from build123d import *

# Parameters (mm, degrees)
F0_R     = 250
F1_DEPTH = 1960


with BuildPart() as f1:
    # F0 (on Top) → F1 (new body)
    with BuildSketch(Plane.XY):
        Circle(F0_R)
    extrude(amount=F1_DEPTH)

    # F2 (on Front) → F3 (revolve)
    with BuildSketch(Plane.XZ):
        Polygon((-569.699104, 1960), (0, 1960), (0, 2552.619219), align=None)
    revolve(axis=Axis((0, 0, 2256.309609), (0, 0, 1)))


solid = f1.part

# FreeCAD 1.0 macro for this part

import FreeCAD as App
import Part
import Sketcher

V = App.Vector


def add_polygon(sketch, points):
    """Adds a closed chain of lines whose ends are joined by coincident constraints."""
    first, n = sketch.GeometryCount, len(points)
    for a, b in zip(points, points[1:] + points[:1]):
        sketch.addGeometry(Part.LineSegment(App.Vector(*a, 0), App.Vector(*b, 0)), False)
    for i in range(n):
        sketch.addConstraint(Sketcher.Constraint("Coincident", first + i, 2, first + (i + 1) % n, 1))

doc = App.newDocument("Part")
params = doc.addObject("Spreadsheet::Sheet", "Params")
for row, (alias, value) in enumerate([
    ("sketch1_diameter", "500 mm"),
    ("pad1_length", "1960 mm"),
    ("revolution_angle", "360 deg"),
], start=1):
    params.set(f"A{row}", alias)
    params.set(f"B{row}", "=" + value)
    params.setAlias(f"B{row}", alias)

body = doc.addObject("PartDesign::Body", "Body")

# Sketch on XY plane
sketch1 = doc.addObject("Sketcher::SketchObject", "Sketch")
body.addObject(sketch1)
sketch1.AttachmentSupport = (doc.XY_Plane, [""])
sketch1.MapMode = "FlatFace"
sketch1.addGeometry(Part.Circle(V(0, 0, 0), V(0, 0, 1), 250), False)
sketch1.addConstraint(Sketcher.Constraint("Coincident", 0, 3, -1, 1))
sketch1.addConstraint(Sketcher.Constraint("Diameter", 0, 500.0))
sketch1.setExpression("Constraints[1]", "Params.sketch1_diameter")
pad1 = doc.addObject("PartDesign::Pad", "Pad")
body.addObject(pad1)
pad1.Profile = sketch1
pad1.setExpression("Length", "Params.pad1_length")

# Sketch on XZ plane
sketch2 = doc.addObject("Sketcher::SketchObject", "Sketch001")
body.addObject(sketch2)
sketch2.AttachmentSupport = (doc.XZ_Plane, [""])
sketch2.MapMode = "FlatFace"
add_polygon(sketch2, [(-570, 1960), (0, 1960), (0, 2553)])  # lines 0-2
sketch2.addConstraint(Sketcher.Constraint("Horizontal", 0))
sketch2.addConstraint(Sketcher.Constraint("Vertical", 1))
sketch2.addConstraint(Sketcher.Constraint("PointOnObject", 0, 2, -2))
sketch2.addConstraint(Sketcher.Constraint("DistanceY", -1, 1, 0, 2, 1960.0))
sketch2.addConstraint(Sketcher.Constraint("DistanceY", 1, 1, 1, 2, 592.619219))
sketch2.addConstraint(Sketcher.Constraint("DistanceX", 0, 1, 0, 2, 569.699104))
revolution = doc.addObject("PartDesign::Revolution", "Revolution")
body.addObject(revolution)
revolution.Profile = sketch2
revolution.ReferenceAxis = (sketch2, ["V_Axis"])
revolution.setExpression("Angle", "Params.revolution_angle")

doc.recompute()
